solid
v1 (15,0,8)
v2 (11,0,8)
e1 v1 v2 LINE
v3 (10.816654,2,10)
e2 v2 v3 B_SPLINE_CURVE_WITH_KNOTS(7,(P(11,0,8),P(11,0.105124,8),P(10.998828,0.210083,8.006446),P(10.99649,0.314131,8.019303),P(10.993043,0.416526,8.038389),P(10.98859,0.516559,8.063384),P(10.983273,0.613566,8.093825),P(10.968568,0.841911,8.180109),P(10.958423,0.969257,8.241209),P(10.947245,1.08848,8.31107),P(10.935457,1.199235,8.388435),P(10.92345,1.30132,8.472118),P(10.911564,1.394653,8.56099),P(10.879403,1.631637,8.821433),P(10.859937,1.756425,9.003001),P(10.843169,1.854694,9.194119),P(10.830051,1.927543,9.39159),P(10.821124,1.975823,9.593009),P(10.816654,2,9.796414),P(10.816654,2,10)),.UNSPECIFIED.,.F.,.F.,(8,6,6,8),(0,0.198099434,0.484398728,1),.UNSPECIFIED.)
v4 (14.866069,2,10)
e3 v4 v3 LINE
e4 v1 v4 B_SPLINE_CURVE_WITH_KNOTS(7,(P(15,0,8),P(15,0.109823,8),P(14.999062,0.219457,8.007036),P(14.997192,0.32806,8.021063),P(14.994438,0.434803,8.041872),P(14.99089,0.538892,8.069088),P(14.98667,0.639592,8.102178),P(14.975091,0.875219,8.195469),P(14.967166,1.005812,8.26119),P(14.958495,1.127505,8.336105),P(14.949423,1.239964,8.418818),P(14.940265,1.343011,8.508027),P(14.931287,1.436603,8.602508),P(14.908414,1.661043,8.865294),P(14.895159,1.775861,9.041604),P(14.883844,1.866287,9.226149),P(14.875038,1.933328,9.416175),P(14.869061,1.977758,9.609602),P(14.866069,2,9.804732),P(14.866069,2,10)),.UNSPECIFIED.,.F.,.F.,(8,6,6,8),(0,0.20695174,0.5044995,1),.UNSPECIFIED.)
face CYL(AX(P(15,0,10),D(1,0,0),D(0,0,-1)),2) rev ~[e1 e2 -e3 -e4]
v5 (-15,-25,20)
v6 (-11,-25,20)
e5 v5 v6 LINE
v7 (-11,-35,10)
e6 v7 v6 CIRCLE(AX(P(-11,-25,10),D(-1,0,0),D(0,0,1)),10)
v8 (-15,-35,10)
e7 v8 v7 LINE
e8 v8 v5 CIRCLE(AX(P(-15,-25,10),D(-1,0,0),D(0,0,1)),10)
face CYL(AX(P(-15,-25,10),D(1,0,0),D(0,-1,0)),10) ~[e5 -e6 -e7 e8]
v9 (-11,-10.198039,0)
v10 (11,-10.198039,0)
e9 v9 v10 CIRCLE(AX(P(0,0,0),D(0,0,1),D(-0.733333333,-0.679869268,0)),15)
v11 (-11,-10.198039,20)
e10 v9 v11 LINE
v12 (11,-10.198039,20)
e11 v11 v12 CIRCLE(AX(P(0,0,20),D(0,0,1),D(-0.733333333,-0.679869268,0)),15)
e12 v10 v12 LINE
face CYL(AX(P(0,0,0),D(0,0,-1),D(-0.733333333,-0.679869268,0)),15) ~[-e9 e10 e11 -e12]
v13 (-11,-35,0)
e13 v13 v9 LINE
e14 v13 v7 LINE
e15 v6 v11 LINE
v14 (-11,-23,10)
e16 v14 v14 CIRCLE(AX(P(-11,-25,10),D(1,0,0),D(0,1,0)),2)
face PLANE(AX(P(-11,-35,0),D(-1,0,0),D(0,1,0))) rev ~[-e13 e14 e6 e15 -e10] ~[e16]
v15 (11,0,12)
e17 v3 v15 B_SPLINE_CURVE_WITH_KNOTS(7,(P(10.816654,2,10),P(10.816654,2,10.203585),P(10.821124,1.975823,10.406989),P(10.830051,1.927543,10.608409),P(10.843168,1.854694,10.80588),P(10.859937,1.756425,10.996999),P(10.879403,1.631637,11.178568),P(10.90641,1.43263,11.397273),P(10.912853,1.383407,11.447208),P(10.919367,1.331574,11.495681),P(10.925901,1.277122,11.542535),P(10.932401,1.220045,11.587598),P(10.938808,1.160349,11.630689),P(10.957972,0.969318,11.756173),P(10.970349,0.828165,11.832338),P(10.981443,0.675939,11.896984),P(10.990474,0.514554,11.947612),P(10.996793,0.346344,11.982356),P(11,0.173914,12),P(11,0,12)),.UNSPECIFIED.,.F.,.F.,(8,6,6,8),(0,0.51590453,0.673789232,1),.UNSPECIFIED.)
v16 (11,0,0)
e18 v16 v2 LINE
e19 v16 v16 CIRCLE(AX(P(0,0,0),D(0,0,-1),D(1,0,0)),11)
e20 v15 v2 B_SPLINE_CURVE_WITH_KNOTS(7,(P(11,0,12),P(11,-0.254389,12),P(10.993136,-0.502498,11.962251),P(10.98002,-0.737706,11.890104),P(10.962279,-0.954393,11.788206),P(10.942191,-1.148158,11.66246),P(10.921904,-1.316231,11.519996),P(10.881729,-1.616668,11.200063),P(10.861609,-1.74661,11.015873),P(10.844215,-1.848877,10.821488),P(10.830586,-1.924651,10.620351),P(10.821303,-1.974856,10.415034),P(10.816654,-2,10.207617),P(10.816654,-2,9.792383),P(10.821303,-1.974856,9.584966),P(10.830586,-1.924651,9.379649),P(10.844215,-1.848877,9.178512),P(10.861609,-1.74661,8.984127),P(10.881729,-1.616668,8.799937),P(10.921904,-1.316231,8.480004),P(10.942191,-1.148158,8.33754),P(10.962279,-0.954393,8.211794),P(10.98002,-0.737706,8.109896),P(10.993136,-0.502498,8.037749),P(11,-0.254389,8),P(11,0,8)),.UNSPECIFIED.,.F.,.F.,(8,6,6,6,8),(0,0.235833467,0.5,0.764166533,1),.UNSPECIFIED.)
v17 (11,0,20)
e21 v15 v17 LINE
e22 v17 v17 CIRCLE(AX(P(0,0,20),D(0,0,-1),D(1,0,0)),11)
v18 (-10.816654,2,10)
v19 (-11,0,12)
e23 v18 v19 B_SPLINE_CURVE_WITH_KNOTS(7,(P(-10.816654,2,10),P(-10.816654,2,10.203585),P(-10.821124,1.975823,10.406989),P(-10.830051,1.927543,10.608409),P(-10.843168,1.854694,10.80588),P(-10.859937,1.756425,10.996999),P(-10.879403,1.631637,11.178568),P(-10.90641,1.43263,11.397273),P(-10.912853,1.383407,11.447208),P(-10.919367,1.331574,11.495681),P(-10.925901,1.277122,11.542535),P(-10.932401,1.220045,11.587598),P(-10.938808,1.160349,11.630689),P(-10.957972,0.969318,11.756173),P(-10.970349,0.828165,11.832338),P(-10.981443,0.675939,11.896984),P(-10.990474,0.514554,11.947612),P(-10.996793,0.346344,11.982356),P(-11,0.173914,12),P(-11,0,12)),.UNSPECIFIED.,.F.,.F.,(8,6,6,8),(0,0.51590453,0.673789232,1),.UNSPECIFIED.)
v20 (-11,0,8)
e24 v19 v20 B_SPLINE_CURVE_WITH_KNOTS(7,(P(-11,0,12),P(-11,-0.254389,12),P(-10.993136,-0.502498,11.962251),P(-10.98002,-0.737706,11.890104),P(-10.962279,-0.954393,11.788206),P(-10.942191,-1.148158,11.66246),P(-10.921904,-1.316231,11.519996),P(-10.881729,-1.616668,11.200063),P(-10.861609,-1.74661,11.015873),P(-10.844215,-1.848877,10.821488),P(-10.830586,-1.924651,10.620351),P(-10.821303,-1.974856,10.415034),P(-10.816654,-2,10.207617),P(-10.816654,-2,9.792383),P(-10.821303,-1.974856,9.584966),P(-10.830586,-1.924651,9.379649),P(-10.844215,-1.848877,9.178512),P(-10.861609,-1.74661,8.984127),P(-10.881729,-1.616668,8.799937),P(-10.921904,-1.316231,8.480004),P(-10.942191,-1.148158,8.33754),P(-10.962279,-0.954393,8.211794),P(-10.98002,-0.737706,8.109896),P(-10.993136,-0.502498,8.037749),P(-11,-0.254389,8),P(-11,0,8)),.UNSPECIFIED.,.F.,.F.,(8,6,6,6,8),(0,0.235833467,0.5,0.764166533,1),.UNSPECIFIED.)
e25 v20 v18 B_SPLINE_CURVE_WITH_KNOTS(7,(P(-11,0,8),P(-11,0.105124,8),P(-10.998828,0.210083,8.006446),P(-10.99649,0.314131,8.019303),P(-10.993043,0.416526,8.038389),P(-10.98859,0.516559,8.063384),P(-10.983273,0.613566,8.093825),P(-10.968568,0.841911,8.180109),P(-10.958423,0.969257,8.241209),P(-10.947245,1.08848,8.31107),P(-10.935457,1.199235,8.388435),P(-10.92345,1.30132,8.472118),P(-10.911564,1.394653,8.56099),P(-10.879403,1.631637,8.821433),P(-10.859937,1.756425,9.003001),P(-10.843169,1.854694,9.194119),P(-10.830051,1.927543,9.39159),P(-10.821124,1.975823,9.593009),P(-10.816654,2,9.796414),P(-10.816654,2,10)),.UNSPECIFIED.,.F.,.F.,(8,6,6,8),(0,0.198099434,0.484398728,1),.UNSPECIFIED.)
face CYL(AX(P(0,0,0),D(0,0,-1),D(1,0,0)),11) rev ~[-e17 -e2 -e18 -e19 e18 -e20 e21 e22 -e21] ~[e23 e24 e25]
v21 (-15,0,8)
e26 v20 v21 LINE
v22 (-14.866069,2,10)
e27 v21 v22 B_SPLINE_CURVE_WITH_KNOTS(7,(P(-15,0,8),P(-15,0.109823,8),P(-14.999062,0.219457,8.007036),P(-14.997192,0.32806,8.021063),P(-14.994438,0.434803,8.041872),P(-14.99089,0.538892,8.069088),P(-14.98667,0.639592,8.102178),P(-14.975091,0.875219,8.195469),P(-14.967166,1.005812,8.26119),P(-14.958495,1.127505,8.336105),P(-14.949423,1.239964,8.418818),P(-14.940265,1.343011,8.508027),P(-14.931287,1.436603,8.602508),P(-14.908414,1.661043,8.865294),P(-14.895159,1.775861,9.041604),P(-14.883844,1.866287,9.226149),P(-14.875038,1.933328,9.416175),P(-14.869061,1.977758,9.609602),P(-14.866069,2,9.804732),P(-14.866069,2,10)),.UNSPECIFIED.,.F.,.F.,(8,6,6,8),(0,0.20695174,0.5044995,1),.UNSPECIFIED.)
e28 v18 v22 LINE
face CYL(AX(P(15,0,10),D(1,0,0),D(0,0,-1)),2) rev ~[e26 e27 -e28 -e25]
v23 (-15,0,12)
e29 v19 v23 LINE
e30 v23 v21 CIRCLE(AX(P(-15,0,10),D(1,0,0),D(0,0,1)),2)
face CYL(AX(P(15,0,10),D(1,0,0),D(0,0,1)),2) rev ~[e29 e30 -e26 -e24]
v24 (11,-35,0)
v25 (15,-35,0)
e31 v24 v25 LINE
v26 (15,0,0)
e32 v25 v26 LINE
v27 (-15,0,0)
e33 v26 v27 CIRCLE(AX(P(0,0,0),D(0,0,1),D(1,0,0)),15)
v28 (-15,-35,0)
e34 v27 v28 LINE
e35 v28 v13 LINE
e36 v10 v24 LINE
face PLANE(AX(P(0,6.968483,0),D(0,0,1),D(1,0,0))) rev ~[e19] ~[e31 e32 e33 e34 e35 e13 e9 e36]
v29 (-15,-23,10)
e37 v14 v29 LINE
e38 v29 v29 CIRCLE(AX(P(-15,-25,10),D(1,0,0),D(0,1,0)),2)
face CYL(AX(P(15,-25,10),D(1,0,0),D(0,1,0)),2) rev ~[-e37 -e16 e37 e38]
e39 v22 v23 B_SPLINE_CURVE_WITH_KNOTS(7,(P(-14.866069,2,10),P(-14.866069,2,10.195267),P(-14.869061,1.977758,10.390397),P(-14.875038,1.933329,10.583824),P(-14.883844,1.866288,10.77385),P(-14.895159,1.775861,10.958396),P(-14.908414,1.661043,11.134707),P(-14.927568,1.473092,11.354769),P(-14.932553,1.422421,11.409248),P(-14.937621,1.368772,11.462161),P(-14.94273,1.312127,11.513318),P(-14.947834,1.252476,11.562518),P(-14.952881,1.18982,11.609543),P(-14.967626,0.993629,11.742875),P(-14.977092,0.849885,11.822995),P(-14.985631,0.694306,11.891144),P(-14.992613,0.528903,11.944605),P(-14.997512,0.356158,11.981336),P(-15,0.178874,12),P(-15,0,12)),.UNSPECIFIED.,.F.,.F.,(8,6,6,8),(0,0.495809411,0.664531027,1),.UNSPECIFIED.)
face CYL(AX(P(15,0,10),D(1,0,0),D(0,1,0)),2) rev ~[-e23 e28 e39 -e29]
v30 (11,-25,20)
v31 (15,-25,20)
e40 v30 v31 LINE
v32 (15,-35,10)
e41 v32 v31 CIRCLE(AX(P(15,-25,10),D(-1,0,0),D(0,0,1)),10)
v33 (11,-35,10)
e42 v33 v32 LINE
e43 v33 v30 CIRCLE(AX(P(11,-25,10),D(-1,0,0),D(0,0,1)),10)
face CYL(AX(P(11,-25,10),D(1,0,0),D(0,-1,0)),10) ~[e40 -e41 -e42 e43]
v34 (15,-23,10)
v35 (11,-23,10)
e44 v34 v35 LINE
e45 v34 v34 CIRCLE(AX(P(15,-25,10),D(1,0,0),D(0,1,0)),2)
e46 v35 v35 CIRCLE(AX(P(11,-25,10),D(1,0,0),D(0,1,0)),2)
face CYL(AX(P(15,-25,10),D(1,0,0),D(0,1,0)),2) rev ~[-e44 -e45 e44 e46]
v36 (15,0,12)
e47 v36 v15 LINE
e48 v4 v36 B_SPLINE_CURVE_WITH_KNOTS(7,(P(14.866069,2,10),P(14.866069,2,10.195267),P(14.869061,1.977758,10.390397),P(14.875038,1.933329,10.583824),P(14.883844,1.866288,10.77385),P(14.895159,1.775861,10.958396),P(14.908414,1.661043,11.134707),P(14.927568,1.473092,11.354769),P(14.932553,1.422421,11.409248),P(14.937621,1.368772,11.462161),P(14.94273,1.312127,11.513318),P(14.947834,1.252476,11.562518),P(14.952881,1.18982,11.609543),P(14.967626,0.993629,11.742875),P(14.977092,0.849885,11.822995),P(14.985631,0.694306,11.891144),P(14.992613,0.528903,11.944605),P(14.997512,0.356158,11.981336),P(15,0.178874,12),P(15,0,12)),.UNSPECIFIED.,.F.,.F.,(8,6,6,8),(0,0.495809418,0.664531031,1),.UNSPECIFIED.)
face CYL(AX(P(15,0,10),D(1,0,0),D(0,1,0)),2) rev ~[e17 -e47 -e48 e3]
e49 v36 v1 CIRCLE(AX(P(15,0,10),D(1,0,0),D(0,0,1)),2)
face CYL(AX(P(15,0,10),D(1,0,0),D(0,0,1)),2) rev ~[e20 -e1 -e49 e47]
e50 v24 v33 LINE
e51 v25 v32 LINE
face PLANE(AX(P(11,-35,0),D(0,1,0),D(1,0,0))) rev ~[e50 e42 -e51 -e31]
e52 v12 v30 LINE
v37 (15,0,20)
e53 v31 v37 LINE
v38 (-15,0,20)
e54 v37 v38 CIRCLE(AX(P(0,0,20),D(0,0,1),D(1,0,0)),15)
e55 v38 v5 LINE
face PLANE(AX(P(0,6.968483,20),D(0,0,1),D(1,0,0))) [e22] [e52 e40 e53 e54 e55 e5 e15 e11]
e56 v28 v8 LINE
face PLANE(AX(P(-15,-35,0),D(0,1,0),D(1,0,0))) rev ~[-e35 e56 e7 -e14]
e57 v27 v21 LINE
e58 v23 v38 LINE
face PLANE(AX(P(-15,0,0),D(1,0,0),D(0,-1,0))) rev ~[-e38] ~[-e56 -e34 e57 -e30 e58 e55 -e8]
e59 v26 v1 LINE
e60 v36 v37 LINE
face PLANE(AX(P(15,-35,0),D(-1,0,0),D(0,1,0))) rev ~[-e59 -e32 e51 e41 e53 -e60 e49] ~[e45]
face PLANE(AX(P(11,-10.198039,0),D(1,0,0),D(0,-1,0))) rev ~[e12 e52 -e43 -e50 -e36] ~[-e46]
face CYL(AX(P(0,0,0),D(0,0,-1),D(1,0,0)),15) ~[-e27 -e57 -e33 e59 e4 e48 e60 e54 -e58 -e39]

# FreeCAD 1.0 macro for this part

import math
import FreeCAD as App
import Part
import Sketcher
from FreeCAD import Vector
Q = App.Units.Quantity


def edges_at(feature, points):
    """Names of the edges that pass closest to the given points."""
    edges = feature.Shape.Edges
    near = lambda p: min(range(len(edges)), key=lambda i: edges[i].distToShape(Part.Vertex(*p))[0])
    return sorted({f"Edge{near(p) + 1}" for p in points})

doc = App.newDocument("Part")
body = doc.addObject("PartDesign::Body", "Body")

# Sketch on XY plane
sketch1 = doc.addObject("Sketcher::SketchObject", "Sketch")
body.addObject(sketch1)
sketch1.AttachmentSupport = (doc.XY_Plane, [""])
sketch1.MapMode = "FlatFace"
sketch1.addGeometry([
    Part.ArcOfCircle(Part.Circle(Vector(0, 0, 0), Vector(0, 0, 1), 15), math.radians(0), math.radians(180)),  # 0
    Part.LineSegment(Vector(-15, 0, 0), Vector(-15, -35, 0)),  # 1
    Part.LineSegment(Vector(-15, -35, 0), Vector(-11, -35, 0)),  # 2
    Part.LineSegment(Vector(-11, -35, 0), Vector(-11, -10.198039, 0)),  # 3
    Part.ArcOfCircle(Part.Circle(Vector(0, 0, 0), Vector(0, 0, 1), 15), math.radians(-137.166572), math.radians(-42.833428)),  # 4
    Part.LineSegment(Vector(11, -10.198039, 0), Vector(11, -35, 0)),  # 5
    Part.LineSegment(Vector(11, -35, 0), Vector(15, -35, 0)),  # 6
    Part.LineSegment(Vector(15, -35, 0), Vector(15, 0, 0)),  # 7
    Part.Circle(Vector(0, 0, 0), Vector(0, 0, 1), 11),  # 8
], False)
sketch1.addConstraint([
    Sketcher.Constraint("Tangent", 0, 2, 1, 1),
    Sketcher.Constraint("Coincident", 1, 2, 2, 1),
    Sketcher.Constraint("Coincident", 2, 2, 3, 1),
    Sketcher.Constraint("Coincident", 3, 2, 4, 1),
    Sketcher.Constraint("Coincident", 4, 2, 5, 1),
    Sketcher.Constraint("Coincident", 5, 2, 6, 1),
    Sketcher.Constraint("Coincident", 6, 2, 7, 1),
    Sketcher.Constraint("Tangent", 7, 2, 0, 1),
    Sketcher.Constraint("Vertical", 1),
    Sketcher.Constraint("Horizontal", 2),
    Sketcher.Constraint("Vertical", 3),
    Sketcher.Constraint("Vertical", 5),
    Sketcher.Constraint("Horizontal", 6),
    Sketcher.Constraint("Vertical", 7),
    Sketcher.Constraint("Coincident", 0, 3, -1, 1),
    Sketcher.Constraint("Coincident", 4, 3, -1, 1),
    Sketcher.Constraint("Coincident", 8, 3, -1, 1),
    Sketcher.Constraint("Equal", 0, 4),
    Sketcher.Constraint("Symmetric", 2, 2, 5, 2, -2),
    Sketcher.Constraint("Diameter", 8, Q("22 mm")),
    Sketcher.Constraint("Radius", 0, Q("15 mm")),
    Sketcher.Constraint("DistanceX", 2, 1, 2, 2, Q("4 mm")),
    Sketcher.Constraint("DistanceY", 1, 2, 1, 1, Q("35 mm")),
])
pad1 = doc.addObject("PartDesign::Pad", "Pad")
body.addObject(pad1)
pad1.Profile = sketch1
pad1.Length = 20
doc.recompute()

fillet = doc.addObject("PartDesign::Fillet", "Fillet")
body.addObject(fillet)
fillet.Base = (pad1, edges_at(pad1, [(-13, -35, 20), (13, -35, 20)]))
fillet.Radius = 10

# Sketch on YZ plane
sketch2 = doc.addObject("Sketcher::SketchObject", "Sketch001")
body.addObject(sketch2)
sketch2.AttachmentSupport = (doc.YZ_Plane, [""])
sketch2.MapMode = "FlatFace"
sketch2.AttachmentOffset = App.Placement(Vector(0, 0, 15), App.Rotation())
sketch2.addGeometry([
    Part.Circle(Vector(-25, 10, 0), Vector(0, 0, 1), 2),
    Part.ArcOfCircle(Part.Circle(Vector(0, 10, 0), Vector(0, 0, 1), 2), math.radians(-90), math.radians(0)),
    Part.ArcOfCircle(Part.Circle(Vector(0, 10, 0), Vector(0, 0, 1), 2), math.radians(0), math.radians(90)),
    Part.ArcOfCircle(Part.Circle(Vector(0, 10, 0), Vector(0, 0, 1), 2), math.radians(90), math.radians(270)),
], False)
sketch2.addConstraint([
    Sketcher.Constraint("Tangent", 1, 2, 2, 1),
    Sketcher.Constraint("Tangent", 2, 2, 3, 1),
    Sketcher.Constraint("Tangent", 3, 2, 1, 1),
    Sketcher.Constraint("Equal", 0, 1),
    Sketcher.Constraint("PointOnObject", 1, 3, -2),
    Sketcher.Constraint("PointOnObject", 2, 2, -2),
    Sketcher.Constraint("PointOnObject", 3, 2, -2),
    Sketcher.Constraint("Horizontal", 0, 3, 1, 3),
    Sketcher.Constraint("Horizontal", 3, 3, 1, 2),
    Sketcher.Constraint("Diameter", 0, Q("4 mm")),
    Sketcher.Constraint("DistanceX", 0, 3, -1, 1, Q("25 mm")),
    Sketcher.Constraint("DistanceY", -1, 1, 0, 3, Q("10 mm")),
])
pocket1 = doc.addObject("PartDesign::Pocket", "Pocket")
body.addObject(pocket1)
pocket1.Profile = sketch2
pocket1.Length = 30

doc.recompute()
